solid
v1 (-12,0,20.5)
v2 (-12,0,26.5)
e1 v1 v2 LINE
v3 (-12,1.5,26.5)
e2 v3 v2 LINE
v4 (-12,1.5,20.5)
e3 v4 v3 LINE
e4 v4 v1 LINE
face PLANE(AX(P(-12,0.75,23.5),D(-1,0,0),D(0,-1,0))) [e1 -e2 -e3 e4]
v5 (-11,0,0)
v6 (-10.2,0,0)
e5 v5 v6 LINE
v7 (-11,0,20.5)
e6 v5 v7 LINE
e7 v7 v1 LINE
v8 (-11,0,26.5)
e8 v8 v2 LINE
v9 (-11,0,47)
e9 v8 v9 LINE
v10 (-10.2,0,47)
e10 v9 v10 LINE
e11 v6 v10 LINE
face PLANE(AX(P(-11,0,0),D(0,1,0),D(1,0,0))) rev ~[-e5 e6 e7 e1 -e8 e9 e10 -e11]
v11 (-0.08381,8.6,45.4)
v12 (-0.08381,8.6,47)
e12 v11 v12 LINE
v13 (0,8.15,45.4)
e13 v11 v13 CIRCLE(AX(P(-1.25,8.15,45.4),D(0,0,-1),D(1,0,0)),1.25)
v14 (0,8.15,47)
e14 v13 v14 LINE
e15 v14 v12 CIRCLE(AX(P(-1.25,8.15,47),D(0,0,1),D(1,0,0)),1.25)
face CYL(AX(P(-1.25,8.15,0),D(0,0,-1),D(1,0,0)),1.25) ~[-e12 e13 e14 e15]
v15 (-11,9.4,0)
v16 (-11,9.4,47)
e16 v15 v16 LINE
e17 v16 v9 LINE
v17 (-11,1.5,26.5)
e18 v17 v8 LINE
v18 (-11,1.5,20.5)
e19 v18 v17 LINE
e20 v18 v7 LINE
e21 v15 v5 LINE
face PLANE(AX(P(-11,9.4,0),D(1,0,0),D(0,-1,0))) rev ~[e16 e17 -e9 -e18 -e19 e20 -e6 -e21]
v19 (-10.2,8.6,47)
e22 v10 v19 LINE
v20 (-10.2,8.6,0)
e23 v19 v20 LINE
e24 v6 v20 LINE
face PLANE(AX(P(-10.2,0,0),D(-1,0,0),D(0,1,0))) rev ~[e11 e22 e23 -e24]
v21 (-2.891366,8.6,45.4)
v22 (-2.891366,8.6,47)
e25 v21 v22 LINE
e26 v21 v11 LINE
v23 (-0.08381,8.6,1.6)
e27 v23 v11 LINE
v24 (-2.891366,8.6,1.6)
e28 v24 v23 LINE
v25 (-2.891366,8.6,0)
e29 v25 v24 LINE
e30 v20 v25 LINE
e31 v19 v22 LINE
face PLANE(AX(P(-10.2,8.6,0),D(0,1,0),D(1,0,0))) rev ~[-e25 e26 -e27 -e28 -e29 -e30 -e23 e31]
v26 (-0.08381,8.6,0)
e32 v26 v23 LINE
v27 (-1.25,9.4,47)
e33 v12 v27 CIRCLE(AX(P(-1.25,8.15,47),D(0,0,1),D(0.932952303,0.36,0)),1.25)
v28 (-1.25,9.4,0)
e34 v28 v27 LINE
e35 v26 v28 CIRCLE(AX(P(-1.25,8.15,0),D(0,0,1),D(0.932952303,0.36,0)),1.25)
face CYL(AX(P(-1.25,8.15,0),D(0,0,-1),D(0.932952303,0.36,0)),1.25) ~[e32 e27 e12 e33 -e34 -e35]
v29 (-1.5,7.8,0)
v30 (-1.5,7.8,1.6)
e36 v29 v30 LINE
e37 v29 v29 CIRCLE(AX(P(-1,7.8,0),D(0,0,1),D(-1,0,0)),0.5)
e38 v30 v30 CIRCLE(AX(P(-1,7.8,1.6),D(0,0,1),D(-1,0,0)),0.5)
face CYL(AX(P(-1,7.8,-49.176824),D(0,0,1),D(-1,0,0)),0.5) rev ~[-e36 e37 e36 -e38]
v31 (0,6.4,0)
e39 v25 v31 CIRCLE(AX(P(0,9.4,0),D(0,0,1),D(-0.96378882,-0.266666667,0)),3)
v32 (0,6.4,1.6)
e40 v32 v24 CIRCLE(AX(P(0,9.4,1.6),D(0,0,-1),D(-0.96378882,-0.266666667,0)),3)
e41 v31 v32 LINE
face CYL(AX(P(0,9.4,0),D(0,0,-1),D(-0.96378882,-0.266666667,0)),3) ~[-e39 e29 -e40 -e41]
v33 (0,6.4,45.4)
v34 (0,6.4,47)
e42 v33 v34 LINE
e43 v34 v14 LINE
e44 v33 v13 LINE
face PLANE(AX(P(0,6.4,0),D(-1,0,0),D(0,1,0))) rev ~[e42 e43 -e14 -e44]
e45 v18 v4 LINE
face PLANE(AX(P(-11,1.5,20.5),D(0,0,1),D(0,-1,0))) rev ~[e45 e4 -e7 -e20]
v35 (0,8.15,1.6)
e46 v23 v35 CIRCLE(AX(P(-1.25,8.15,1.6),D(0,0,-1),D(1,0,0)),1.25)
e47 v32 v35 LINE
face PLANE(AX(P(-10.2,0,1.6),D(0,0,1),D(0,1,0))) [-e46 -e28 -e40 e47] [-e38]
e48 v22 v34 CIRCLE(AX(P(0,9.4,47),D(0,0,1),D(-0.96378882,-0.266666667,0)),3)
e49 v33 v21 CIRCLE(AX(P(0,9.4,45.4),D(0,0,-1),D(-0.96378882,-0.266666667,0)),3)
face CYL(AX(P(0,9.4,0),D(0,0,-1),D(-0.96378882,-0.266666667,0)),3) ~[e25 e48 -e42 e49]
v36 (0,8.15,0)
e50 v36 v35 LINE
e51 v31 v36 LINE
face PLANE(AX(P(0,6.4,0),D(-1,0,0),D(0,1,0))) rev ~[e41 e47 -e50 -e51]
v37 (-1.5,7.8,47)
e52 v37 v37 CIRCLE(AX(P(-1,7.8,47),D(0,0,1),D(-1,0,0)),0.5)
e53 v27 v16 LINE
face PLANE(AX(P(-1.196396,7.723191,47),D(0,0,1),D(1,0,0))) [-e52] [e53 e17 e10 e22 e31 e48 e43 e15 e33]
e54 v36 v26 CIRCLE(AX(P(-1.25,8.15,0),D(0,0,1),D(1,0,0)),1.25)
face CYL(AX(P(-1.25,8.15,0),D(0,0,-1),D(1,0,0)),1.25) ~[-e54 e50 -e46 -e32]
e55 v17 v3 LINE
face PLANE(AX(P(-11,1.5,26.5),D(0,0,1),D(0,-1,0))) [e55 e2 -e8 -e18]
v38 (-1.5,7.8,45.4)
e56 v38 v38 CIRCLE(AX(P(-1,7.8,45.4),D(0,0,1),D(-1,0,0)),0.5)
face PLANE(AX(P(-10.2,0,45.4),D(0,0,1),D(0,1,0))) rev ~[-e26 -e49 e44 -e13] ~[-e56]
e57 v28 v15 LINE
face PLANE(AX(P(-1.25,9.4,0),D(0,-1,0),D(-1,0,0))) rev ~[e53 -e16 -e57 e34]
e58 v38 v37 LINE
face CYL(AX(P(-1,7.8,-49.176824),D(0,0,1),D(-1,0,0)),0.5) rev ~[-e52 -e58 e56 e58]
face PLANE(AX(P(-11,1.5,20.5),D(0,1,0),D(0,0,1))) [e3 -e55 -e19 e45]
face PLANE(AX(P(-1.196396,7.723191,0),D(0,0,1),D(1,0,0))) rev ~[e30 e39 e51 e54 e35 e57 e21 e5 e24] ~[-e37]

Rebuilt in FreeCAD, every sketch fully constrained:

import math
import FreeCAD as App
import Part
import Sketcher

V = App.Vector
Q = App.Units.Quantity


def add_polygon(sketch, points):
    """Adds a closed chain of lines whose ends are joined by coincident constraints."""
    first, n = sketch.GeometryCount, len(points)
    for a, b in zip(points, points[1:] + points[:1]):
        sketch.addGeometry(Part.LineSegment(App.Vector(*a, 0), App.Vector(*b, 0)), False)
    for i in range(n):
        sketch.addConstraint(Sketcher.Constraint("Coincident", first + i, 2, first + (i + 1) % n, 1))

doc = App.newDocument("Part")
params = doc.addObject("Spreadsheet::Sheet", "Params")
for row, (alias, value) in enumerate([
    ("sketch1_radius", "3 mm"),
    ("sketch1_radius2", "1.25 mm"),
    ("sketch1_width", "0.8 mm"),
    ("sketch1_height", "9.4 mm"),
    ("sketch1_height2", "8.6 mm"),
    ("pad1_length", "47 mm"),
    ("sketch2_width", "8.6 mm"),
    ("sketch2_height", "43.8 mm"),
    ("pocket1_length", "25 mm"),
    ("sketch3_diameter", "1 mm"),
    ("hole_diameter", "1 mm"),
    ("sketch4_height", "6 mm"),
    ("sketch4_width", "1.5 mm"),
    ("pad2_length", "1 mm"),
], start=1):
    params.set(f"A{row}", alias)
    params.set(f"B{row}", "=" + value)
    params.setAlias(f"B{row}", alias)

body = doc.addObject("PartDesign::Body", "Body")

sketch1 = doc.addObject("Sketcher::SketchObject", "Sketch")
body.addObject(sketch1)
sketch1.AttachmentSupport = (doc.XY_Plane, [""])
sketch1.MapMode = "FlatFace"
sketch1.addGeometry([
    Part.ArcOfCircle(Part.Circle(V(0, 9.4, 0), V(0, 0, 1), 3), math.radians(-165), math.radians(-90)),
    Part.LineSegment(V(0, 6.4, 0), V(0, 8.15, 0)),
    Part.ArcOfCircle(Part.Circle(V(-1.25, 8.15, 0), V(0, 0, 1), 1.25), math.radians(0), math.radians(21)),
    Part.ArcOfCircle(Part.Circle(V(-1.25, 8.15, 0), V(0, 0, 1), 1.25), math.radians(21), math.radians(90)),
    Part.LineSegment(V(-1.25, 9.4, 0), V(-11, 9.4, 0)),
    Part.LineSegment(V(-11, 9.4, 0), V(-11, 0, 0)),
    Part.LineSegment(V(-11, 0, 0), V(-10.2, 0, 0)),
    Part.LineSegment(V(-10.2, 0, 0), V(-10.2, 8.6, 0)),
    Part.LineSegment(V(-10.2, 8.6, 0), V(-2.89, 8.6, 0)),
], False)
sketch1.addConstraint([
    Sketcher.Constraint("Coincident", 0, 2, 1, 1),
    Sketcher.Constraint("Tangent", 1, 2, 2, 1),
    Sketcher.Constraint("Tangent", 2, 2, 3, 1),
    Sketcher.Constraint("Tangent", 3, 2, 4, 1),
    Sketcher.Constraint("Coincident", 4, 2, 5, 1),
    Sketcher.Constraint("Coincident", 5, 2, 6, 1),
    Sketcher.Constraint("Coincident", 6, 2, 7, 1),
    Sketcher.Constraint("Coincident", 7, 2, 8, 1),
    Sketcher.Constraint("Coincident", 8, 2, 0, 1),
    Sketcher.Constraint("Vertical", 1),
    Sketcher.Constraint("Horizontal", 4),
    Sketcher.Constraint("Vertical", 5),
    Sketcher.Constraint("Horizontal", 6),
    Sketcher.Constraint("Vertical", 7),
    Sketcher.Constraint("Horizontal", 8),
    Sketcher.Constraint("Equal", 2, 3),
    Sketcher.Constraint("PointOnObject", 0, 3, -2),
    Sketcher.Constraint("PointOnObject", 0, 2, -2),
    Sketcher.Constraint("PointOnObject", 5, 2, -1),
    Sketcher.Constraint("Horizontal", 0, 3, 3, 2),
    Sketcher.Constraint("Horizontal", 2, 2, 7, 2),
    Sketcher.Constraint("Radius", 0, Q("3 mm")),
    Sketcher.Constraint("Radius", 2, Q("1.25 mm")),
    Sketcher.Constraint("DistanceX", 6, 1, 6, 2, Q("0.8 mm")),
    Sketcher.Constraint("DistanceY", 5, 2, 5, 1, Q("9.4 mm")),
    Sketcher.Constraint("DistanceY", 7, 1, 7, 2, Q("8.6 mm")),
    Sketcher.Constraint("DistanceX", 4, 2, -1, 1, Q("11 mm")),
])
sketch1.setExpression("Constraints[21]", "Params.sketch1_radius")
sketch1.setExpression("Constraints[22]", "Params.sketch1_radius2")
sketch1.setExpression("Constraints[23]", "Params.sketch1_width")
sketch1.setExpression("Constraints[24]", "Params.sketch1_height")
sketch1.setExpression("Constraints[25]", "Params.sketch1_height2")
pad1 = doc.addObject("PartDesign::Pad", "Pad")
body.addObject(pad1)
pad1.Profile = sketch1
pad1.setExpression("Length", "Params.pad1_length")

sketch2 = doc.addObject("Sketcher::SketchObject", "Sketch001")
body.addObject(sketch2)
sketch2.AttachmentSupport = (doc.YZ_Plane, [""])
sketch2.MapMode = "FlatFace"
sketch2.AttachmentOffset = App.Placement(V(0, 0, -10.2), App.Rotation())
add_polygon(sketch2, [(0, 45), (0, 2), (9, 2), (9, 45)])
sketch2.addConstraint([
    Sketcher.Constraint("Vertical", 0),
    Sketcher.Constraint("Horizontal", 1),
    Sketcher.Constraint("Vertical", 2),
    Sketcher.Constraint("Horizontal", 3),
    Sketcher.Constraint("PointOnObject", 0, 2, -2),
    Sketcher.Constraint("DistanceX", 1, 1, 1, 2, Q("8.6 mm")),
    Sketcher.Constraint("DistanceY", 0, 2, 0, 1, Q("43.8 mm")),
    Sketcher.Constraint("DistanceY", -1, 1, 0, 2, Q("1.6 mm")),
])
sketch2.setExpression("Constraints[9]", "Params.sketch2_width")
sketch2.setExpression("Constraints[10]", "Params.sketch2_height")
pocket1 = doc.addObject("PartDesign::Pocket", "Pocket")
body.addObject(pocket1)
pocket1.Profile = sketch2
pocket1.setExpression("Length", "Params.pocket1_length")
pocket1.Reversed = True

sketch3 = doc.addObject("Sketcher::SketchObject", "Sketch002")
body.addObject(sketch3)
sketch3.AttachmentSupport = (doc.XY_Plane, [""])
sketch3.MapMode = "FlatFace"
sketch3.addGeometry(Part.Circle(V(-1, 7.8, 0), V(0, 0, 1), 0.5), False)
sketch3.addConstraint([
    Sketcher.Constraint("Diameter", 0, Q("1 mm")),
    Sketcher.Constraint("DistanceX", 0, 3, -1, 1, Q("1 mm")),
    Sketcher.Constraint("DistanceY", -1, 1, 0, 3, Q("7.8 mm")),
])
sketch3.setExpression("Constraints[0]", "Params.sketch3_diameter")
doc.recompute()
hole = doc.addObject("PartDesign::Hole", "Hole")
body.addObject(hole)
hole.Profile = sketch3
hole.ThreadType = "None"
hole.setExpression("Diameter", "Params.hole_diameter")
hole.DepthType = "ThroughAll"
hole.Reversed = True

sketch4 = doc.addObject("Sketcher::SketchObject", "Sketch003")
body.addObject(sketch4)
sketch4.AttachmentSupport = (doc.YZ_Plane, [""])
sketch4.MapMode = "FlatFace"
sketch4.AttachmentOffset = App.Placement(V(0, 0, -11), App.Rotation())
add_polygon(sketch4, [(1.5, 26.5), (1.5, 20.5), (0, 20.5), (0, 26.5)])
sketch4.addConstraint([
    Sketcher.Constraint("Vertical", 0),
    Sketcher.Constraint("Horizontal", 1),
    Sketcher.Constraint("Vertical", 2),
    Sketcher.Constraint("Horizontal", 3),
    Sketcher.Constraint("PointOnObject", 1, 2, -2),
    Sketcher.Constraint("DistanceY", 0, 2, 0, 1, Q("6 mm")),
    Sketcher.Constraint("DistanceX", 1, 2, 1, 1, Q("1.5 mm")),
    Sketcher.Constraint("DistanceY", -1, 1, 0, 2, Q("20.5 mm")),
])
sketch4.setExpression("Constraints[9]", "Params.sketch4_height")
sketch4.setExpression("Constraints[10]", "Params.sketch4_width")
pad2 = doc.addObject("PartDesign::Pad", "Pad001")
body.addObject(pad2)
pad2.Profile = sketch4
pad2.setExpression("Length", "Params.pad2_length")
pad2.Reversed = True

doc.recompute()
